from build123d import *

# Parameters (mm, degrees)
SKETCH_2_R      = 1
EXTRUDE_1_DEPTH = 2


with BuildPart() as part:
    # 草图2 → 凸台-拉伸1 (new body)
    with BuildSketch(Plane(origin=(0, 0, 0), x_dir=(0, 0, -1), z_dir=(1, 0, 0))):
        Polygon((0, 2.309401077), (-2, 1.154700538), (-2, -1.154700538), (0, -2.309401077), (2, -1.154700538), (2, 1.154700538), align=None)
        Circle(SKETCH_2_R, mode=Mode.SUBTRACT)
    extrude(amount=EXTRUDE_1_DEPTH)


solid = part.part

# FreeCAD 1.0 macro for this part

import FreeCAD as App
import Part
import Sketcher
Q = App.Units.Quantity


def add_polygon(sketch, points):
    """Adds a closed chain of lines whose ends are joined by coincident constraints."""
    first, n = sketch.GeometryCount, len(points)
    for a, b in zip(points, points[1:] + points[:1]):
        sketch.addGeometry(Part.LineSegment(App.Vector(*a, 0), App.Vector(*b, 0)), False)
    for i in range(n):
        sketch.addConstraint(Sketcher.Constraint("Coincident", first + i, 2, first + (i + 1) % n, 1))

doc = App.newDocument("Part")
params = doc.addObject("Spreadsheet::Sheet", "Params")
for row, (alias, value) in enumerate([
    ("sketch1_diameter", "2 mm"),
    ("pad1_length", "2 mm"),
], start=1):
    params.set(f"A{row}", alias)
    params.set(f"B{row}", "=" + value)
    params.setAlias(f"B{row}", alias)

body = doc.addObject("PartDesign::Body", "Body")

# Sketch on YZ plane
sketch1 = doc.addObject("Sketcher::SketchObject", "Sketch")
body.addObject(sketch1)
sketch1.AttachmentSupport = (doc.YZ_Plane, [""])
sketch1.MapMode = "FlatFace"
add_polygon(sketch1, [(2.3, 0), (1.2, 2), (-1.2, 2), (-2.3, 0), (-1.2, -2), (1.2, -2)])  # lines 0-5
sketch1.addGeometry(Part.Circle(App.Vector(0, 0, 0), App.Vector(0, 0, 1), 1), False)  # 6
sketch1.addConstraint(Sketcher.Constraint("Horizontal", 1))
sketch1.addConstraint(Sketcher.Constraint("Horizontal", 4))
sketch1.addConstraint(Sketcher.Constraint("Coincident", 6, 3, -1, 1))
sketch1.addConstraint(Sketcher.Constraint("Symmetric", 0, 2, 3, 2, -1, 1))
sketch1.addConstraint(Sketcher.Constraint("Symmetric", 2, 2, 5, 2, -1, 1))
sketch1.addConstraint(Sketcher.Constraint("PointOnObject", 2, 2, -1))
sketch1.addConstraint(Sketcher.Constraint("Parallel", 2, 5))
sketch1.addConstraint(Sketcher.Constraint("Vertical", 1, 2, 3, 2))
sketch1.addConstraint(Sketcher.Constraint("Diameter", 6, 2.0))
sketch1.addConstraint(Sketcher.Constraint("Angle", 0, Q("120 deg")))
sketch1.addConstraint(Sketcher.Constraint("DistanceY", -1, 1, 0, 2, 2.0))
sketch1.addConstraint(Sketcher.Constraint("DistanceX", 1, 2, 1, 1, 2.309401))
sketch1.setExpression("Constraints[14]", "Params.sketch1_diameter")
pad1 = doc.addObject("PartDesign::Pad", "Pad")
body.addObject(pad1)
pad1.Profile = sketch1
pad1.setExpression("Length", "Params.pad1_length")

doc.recompute()
